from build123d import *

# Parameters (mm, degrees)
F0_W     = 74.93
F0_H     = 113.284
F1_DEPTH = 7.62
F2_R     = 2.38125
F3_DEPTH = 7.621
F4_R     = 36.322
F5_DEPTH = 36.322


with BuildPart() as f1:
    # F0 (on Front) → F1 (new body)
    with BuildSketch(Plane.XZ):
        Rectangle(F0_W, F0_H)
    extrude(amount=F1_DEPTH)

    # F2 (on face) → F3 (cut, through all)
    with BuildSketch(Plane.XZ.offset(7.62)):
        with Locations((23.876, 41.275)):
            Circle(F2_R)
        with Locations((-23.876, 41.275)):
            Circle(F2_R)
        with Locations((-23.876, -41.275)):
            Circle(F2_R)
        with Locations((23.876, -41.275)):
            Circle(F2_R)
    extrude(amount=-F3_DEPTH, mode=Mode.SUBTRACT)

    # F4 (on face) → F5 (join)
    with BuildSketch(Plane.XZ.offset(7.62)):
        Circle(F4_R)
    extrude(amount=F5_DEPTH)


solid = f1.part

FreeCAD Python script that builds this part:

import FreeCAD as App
import Part
import Sketcher

V = App.Vector
Q = App.Units.Quantity


def add_polygon(sketch, points):
    """Adds a closed chain of lines whose ends are joined by coincident constraints."""
    first, n = sketch.GeometryCount, len(points)
    for a, b in zip(points, points[1:] + points[:1]):
        sketch.addGeometry(Part.LineSegment(App.Vector(*a, 0), App.Vector(*b, 0)), False)
    for i in range(n):
        sketch.addConstraint(Sketcher.Constraint("Coincident", first + i, 2, first + (i + 1) % n, 1))

doc = App.newDocument("Part")
params = doc.addObject("Spreadsheet::Sheet", "Params")
for row, (alias, value) in enumerate([
    ("sketch1_width", "2.95 in"),
    ("sketch1_height", "4.46 in"),
    ("pad1_length", "0.3 in"),
    ("sketch2_diameter", "0.1875 in"),
    ("sketch3_diameter", "2.86 in"),
    ("pad2_length", "1.43 in"),
], start=1):
    params.set(f"A{row}", alias)
    params.set(f"B{row}", "=" + value)
    params.setAlias(f"B{row}", alias)

body = doc.addObject("PartDesign::Body", "Body")

# Sketch on XZ plane
sketch1 = body.newObject("Sketcher::SketchObject", "Sketch")
sketch1.AttachmentSupport = (doc.getObject("XZ_Plane"), [""])
sketch1.MapMode = "FlatFace"
add_polygon(sketch1, [(-37.465, 56.642), (-37.465, -56.642), (37.465, -56.642), (37.465, 56.642)])  # lines 0-3
sketch1.addConstraint([
    Sketcher.Constraint("Vertical", 0),
    Sketcher.Constraint("Horizontal", 1),
    Sketcher.Constraint("Vertical", 2),
    Sketcher.Constraint("Horizontal", 3),
    Sketcher.Constraint("Symmetric", 0, 2, 2, 2, -1, 1),
    Sketcher.Constraint("DistanceX", 1, 1, 1, 2, Q("2.95 in")),
    Sketcher.Constraint("DistanceY", 0, 2, 0, 1, Q("4.46 in")),
])
sketch1.setExpression("Constraints[9]", "Params.sketch1_width")
sketch1.setExpression("Constraints[10]", "Params.sketch1_height")
pad1 = body.newObject("PartDesign::Pad", "Pad")
pad1.Profile = sketch1
pad1.setExpression("Length", "Params.pad1_length")

# Sketch on XZ plane
sketch2 = body.newObject("Sketcher::SketchObject", "Sketch001")
sketch2.AttachmentSupport = (doc.getObject("XZ_Plane"), [""])
sketch2.MapMode = "FlatFace"
sketch2.AttachmentOffset = App.Placement(V(0, 0, 0.3 * 25.4), App.Rotation())
sketch2.addGeometry([
    Part.Circle(V(23.876, 41.275, 0), V(0, 0, 1), 2.38125),
    Part.Circle(V(-23.876, 41.275, 0), V(0, 0, 1), 2.38125),
    Part.Circle(V(-23.876, -41.275, 0), V(0, 0, 1), 2.38125),
    Part.Circle(V(23.876, -41.275, 0), V(0, 0, 1), 2.38125),
], False)
sketch2.addConstraint([
    Sketcher.Constraint("Equal", 0, 1),
    Sketcher.Constraint("Equal", 1, 2),
    Sketcher.Constraint("Equal", 2, 3),
    Sketcher.Constraint("Symmetric", 0, 3, 2, 3, -1, 1),
    Sketcher.Constraint("Symmetric", 1, 3, 3, 3, -1, 1),
    Sketcher.Constraint("Symmetric", 0, 3, 1, 3, -2),
    Sketcher.Constraint("Diameter", 0, Q("0.1875 in")),
    Sketcher.Constraint("DistanceX", -1, 1, 0, 3, Q("0.94 in")),
    Sketcher.Constraint("DistanceY", 2, 3, 1, 3, Q("3.25 in")),
])
sketch2.setExpression("Constraints[6]", "Params.sketch2_diameter")
pocket1 = body.newObject("PartDesign::Pocket", "Pocket")
pocket1.Profile = sketch2
pocket1.Type = "ThroughAll"

# Sketch on XZ plane
sketch3 = body.newObject("Sketcher::SketchObject", "Sketch002")
sketch3.AttachmentSupport = (doc.getObject("XZ_Plane"), [""])
sketch3.MapMode = "FlatFace"
sketch3.AttachmentOffset = App.Placement(V(0, 0, 0.3 * 25.4), App.Rotation())
sketch3.addGeometry(Part.Circle(V(0, 0, 0), V(0, 0, 1), 36.322), False)
sketch3.addConstraint([
    Sketcher.Constraint("Coincident", 0, 3, -1, 1),
    Sketcher.Constraint("Diameter", 0, Q("2.86 in")),
])
sketch3.setExpression("Constraints[1]", "Params.sketch3_diameter")
pad2 = body.newObject("PartDesign::Pad", "Pad001")
pad2.Profile = sketch3
pad2.setExpression("Length", "Params.pad2_length")

doc.recompute()
